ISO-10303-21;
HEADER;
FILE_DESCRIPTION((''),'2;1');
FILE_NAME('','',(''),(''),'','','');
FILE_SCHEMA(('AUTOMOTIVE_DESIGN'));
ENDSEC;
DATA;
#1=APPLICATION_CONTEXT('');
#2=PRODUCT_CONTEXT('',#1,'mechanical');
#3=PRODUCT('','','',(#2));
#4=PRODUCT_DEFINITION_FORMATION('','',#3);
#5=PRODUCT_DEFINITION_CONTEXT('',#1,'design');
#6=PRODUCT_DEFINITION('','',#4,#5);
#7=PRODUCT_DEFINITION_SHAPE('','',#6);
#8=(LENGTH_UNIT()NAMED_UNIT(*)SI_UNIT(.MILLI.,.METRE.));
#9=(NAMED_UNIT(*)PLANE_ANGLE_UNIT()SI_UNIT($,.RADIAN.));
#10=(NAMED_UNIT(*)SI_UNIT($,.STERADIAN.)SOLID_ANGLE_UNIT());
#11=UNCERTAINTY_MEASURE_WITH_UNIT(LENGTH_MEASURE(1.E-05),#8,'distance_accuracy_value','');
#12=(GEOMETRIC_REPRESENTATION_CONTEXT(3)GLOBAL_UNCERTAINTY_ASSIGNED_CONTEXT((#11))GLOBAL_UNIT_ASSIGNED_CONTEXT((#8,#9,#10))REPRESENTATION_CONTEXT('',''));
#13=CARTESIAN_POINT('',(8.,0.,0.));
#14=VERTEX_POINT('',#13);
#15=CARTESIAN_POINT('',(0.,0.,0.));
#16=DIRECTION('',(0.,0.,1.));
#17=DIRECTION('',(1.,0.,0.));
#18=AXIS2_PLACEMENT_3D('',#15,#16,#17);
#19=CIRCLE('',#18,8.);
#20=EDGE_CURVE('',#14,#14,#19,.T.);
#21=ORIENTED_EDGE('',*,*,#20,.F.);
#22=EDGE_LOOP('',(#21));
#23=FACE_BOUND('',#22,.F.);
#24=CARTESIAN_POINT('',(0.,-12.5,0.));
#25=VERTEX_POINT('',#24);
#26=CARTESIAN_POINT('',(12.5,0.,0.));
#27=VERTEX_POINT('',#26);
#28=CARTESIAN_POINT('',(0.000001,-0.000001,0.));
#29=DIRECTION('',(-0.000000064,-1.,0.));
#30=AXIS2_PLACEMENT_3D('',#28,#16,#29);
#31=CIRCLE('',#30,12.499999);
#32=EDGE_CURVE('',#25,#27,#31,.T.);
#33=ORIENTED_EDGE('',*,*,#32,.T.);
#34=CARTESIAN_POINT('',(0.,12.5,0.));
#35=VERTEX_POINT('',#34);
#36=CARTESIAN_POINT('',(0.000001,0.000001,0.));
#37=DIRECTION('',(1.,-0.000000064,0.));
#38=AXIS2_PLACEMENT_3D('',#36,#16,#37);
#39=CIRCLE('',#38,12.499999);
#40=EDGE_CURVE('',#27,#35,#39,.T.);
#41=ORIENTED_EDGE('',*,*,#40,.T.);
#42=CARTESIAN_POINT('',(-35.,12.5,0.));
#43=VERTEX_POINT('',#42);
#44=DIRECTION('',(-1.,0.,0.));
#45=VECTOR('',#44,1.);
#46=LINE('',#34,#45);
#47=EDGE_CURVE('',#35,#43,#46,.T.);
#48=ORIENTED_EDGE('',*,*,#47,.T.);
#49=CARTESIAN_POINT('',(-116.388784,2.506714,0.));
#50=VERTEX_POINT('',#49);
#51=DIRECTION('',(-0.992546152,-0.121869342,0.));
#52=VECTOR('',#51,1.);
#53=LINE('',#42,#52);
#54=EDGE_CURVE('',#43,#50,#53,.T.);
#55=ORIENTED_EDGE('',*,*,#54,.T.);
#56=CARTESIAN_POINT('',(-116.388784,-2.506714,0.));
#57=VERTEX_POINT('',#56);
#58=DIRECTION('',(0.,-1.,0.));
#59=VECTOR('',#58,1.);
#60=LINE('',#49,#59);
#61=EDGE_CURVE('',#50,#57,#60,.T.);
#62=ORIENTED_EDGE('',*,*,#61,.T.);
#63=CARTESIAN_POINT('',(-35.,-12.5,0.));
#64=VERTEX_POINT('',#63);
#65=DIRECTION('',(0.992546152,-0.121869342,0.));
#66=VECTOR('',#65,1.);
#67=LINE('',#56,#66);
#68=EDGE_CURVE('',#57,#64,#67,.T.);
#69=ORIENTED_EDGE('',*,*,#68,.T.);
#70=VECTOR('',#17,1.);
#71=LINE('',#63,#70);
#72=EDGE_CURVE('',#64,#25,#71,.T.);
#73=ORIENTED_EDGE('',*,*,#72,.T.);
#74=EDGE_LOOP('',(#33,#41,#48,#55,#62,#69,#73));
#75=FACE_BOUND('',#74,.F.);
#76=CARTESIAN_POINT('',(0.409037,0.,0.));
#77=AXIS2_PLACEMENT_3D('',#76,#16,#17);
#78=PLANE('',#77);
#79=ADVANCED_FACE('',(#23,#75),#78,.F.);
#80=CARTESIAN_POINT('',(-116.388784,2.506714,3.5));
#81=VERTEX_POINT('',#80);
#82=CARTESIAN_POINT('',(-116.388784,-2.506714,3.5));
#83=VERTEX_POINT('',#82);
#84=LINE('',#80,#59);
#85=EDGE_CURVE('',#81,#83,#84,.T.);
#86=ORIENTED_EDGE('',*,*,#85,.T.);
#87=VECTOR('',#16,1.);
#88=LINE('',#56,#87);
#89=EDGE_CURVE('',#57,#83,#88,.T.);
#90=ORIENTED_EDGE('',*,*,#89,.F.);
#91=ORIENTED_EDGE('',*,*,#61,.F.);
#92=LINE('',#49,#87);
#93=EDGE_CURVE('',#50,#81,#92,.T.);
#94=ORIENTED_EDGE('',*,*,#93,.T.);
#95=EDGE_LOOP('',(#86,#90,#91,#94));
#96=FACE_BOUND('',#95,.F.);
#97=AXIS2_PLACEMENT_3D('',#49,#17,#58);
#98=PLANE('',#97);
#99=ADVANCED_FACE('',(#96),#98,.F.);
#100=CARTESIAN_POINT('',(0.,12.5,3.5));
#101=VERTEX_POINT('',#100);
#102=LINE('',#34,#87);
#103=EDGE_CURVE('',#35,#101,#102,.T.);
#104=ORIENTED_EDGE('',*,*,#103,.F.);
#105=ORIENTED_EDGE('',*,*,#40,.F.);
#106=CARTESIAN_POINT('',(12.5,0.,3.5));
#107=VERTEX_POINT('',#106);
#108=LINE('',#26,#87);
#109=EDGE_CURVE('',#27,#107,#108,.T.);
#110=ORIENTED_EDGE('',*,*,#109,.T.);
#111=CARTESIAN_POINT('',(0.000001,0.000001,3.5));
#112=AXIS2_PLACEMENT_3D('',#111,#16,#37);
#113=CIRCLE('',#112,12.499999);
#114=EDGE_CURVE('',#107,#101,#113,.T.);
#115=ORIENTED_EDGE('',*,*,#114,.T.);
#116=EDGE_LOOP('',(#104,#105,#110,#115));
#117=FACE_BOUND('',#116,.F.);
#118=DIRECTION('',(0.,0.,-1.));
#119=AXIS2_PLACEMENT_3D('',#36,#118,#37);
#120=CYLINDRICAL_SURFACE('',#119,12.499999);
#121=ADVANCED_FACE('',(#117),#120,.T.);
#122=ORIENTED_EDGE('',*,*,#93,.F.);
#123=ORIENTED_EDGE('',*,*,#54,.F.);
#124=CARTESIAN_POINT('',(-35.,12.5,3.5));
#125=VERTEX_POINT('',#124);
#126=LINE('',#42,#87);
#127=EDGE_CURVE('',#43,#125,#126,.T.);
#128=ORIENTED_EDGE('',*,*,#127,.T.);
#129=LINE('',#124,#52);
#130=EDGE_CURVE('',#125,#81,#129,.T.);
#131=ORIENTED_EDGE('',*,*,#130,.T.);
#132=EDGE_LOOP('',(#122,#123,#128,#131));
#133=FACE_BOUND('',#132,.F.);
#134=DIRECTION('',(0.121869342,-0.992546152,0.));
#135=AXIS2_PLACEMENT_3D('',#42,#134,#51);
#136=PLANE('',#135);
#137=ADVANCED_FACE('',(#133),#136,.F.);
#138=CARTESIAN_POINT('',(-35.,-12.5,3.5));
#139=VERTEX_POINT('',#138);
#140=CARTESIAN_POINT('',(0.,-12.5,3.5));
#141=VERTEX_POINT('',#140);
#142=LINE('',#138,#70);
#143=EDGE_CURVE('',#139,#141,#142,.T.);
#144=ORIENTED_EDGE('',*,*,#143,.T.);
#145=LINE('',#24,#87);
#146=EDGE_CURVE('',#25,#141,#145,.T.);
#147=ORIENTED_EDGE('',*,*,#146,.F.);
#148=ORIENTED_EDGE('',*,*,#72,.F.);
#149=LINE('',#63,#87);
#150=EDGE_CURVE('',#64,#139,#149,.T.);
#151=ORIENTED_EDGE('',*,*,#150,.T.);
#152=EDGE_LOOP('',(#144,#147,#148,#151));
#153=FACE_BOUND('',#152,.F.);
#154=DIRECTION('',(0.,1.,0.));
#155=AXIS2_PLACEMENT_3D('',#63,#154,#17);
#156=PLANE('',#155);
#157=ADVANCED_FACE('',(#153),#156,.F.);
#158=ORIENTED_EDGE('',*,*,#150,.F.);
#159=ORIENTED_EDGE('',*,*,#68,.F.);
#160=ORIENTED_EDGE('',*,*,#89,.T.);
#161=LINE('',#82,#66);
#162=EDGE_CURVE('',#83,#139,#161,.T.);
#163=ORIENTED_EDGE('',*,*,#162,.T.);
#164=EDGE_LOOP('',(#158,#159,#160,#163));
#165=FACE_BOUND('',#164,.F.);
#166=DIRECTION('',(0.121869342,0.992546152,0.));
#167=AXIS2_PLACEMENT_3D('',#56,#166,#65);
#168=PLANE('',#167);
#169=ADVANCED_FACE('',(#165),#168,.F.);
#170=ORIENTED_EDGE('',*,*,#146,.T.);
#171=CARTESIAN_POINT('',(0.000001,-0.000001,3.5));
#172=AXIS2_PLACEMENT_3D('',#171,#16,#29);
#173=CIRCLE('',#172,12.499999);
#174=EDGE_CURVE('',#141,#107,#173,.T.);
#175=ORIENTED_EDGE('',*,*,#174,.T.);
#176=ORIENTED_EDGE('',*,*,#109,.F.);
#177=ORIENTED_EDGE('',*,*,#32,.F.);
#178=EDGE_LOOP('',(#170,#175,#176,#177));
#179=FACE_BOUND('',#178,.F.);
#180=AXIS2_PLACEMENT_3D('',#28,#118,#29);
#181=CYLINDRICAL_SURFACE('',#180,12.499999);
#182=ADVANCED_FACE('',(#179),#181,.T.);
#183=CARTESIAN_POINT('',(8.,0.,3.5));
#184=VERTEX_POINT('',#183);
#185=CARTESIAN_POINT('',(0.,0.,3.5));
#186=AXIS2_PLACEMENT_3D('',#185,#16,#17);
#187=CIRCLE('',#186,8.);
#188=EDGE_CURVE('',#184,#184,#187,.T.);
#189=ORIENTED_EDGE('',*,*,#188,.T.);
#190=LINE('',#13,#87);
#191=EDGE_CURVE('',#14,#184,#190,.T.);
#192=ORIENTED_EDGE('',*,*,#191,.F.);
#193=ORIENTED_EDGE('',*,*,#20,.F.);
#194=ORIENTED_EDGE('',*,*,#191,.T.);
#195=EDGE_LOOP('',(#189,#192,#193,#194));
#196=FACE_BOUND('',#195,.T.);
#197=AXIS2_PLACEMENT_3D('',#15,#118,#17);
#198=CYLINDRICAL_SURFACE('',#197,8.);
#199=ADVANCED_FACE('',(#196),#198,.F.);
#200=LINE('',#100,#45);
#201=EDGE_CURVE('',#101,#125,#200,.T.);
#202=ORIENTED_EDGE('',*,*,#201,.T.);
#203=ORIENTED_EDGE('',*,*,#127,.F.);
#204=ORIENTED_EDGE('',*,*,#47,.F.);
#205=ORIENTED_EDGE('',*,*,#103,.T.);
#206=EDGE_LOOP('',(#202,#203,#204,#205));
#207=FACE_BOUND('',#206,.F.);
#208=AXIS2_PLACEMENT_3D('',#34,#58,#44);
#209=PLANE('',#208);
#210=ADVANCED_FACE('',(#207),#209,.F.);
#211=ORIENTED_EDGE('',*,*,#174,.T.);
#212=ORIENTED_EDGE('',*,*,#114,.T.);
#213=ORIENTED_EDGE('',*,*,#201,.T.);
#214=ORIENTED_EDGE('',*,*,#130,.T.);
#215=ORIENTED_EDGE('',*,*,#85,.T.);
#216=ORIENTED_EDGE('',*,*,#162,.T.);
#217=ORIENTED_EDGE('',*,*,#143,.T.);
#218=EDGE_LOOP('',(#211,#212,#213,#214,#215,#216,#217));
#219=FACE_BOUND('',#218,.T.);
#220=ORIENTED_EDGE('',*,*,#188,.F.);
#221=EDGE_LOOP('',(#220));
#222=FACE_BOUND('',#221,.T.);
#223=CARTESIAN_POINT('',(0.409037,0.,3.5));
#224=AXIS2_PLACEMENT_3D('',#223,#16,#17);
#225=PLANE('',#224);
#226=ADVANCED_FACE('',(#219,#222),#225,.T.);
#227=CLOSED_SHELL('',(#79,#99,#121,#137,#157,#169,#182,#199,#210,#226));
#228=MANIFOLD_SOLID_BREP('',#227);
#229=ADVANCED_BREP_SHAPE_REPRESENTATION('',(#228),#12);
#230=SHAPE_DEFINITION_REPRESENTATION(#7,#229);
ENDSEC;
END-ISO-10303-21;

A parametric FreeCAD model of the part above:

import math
import FreeCAD as App
import Part
import Sketcher

V = App.Vector
Q = App.Units.Quantity


def add_polygon(sketch, points):
    """Adds a closed chain of lines whose ends are joined by coincident constraints."""
    first, n = sketch.GeometryCount, len(points)
    for a, b in zip(points, points[1:] + points[:1]):
        sketch.addGeometry(Part.LineSegment(App.Vector(*a, 0), App.Vector(*b, 0)), False)
    for i in range(n):
        sketch.addConstraint(Sketcher.Constraint("Coincident", first + i, 2, first + (i + 1) % n, 1))

doc = App.newDocument("Part")
body = doc.addObject("PartDesign::Body", "Body")

sketch1 = body.newObject("Sketcher::SketchObject", "Sketch")
sketch1.AttachmentSupport = (doc.getObject("XY_Plane"), [""])
sketch1.MapMode = "FlatFace"
sketch1.addGeometry([
    Part.ArcOfCircle(Part.Circle(V(0.000001, -0.000001, 0), V(0, 0, 1), 12.499999), math.radians(-90.000004), math.radians(0.000004)),
    Part.ArcOfCircle(Part.Circle(V(0.000001, 0.000001, 0), V(0, 0, 1), 12.499999), math.radians(-0.000004), math.radians(90.000004)),
    Part.LineSegment(V(0, 12.5, 0), V(-35, 12.5, 0)),
    Part.LineSegment(V(-35, 12.5, 0), V(-116.388784, 2.506714, 0)),
    Part.LineSegment(V(-116.388784, 2.506714, 0), V(-116.388784, -2.506714, 0)),
    Part.LineSegment(V(-116.388784, -2.506714, 0), V(-35, -12.5, 0)),
    Part.LineSegment(V(-35, -12.5, 0), V(0, -12.5, 0)),
    Part.Circle(V(0, 0, 0), V(0, 0, 1), 8),
], False)
sketch1.addConstraint([
    Sketcher.Constraint("Tangent", 0, 2, 1, 1),
    Sketcher.Constraint("Tangent", 1, 2, 2, 1),
    Sketcher.Constraint("Coincident", 2, 2, 3, 1),
    Sketcher.Constraint("Coincident", 3, 2, 4, 1),
    Sketcher.Constraint("Coincident", 4, 2, 5, 1),
    Sketcher.Constraint("Coincident", 5, 2, 6, 1),
    Sketcher.Constraint("Tangent", 6, 2, 0, 1),
    Sketcher.Constraint("Horizontal", 2),
    Sketcher.Constraint("Vertical", 4),
    Sketcher.Constraint("Horizontal", 6),
    Sketcher.Constraint("Coincident", 0, 3, -1, 1),
    Sketcher.Constraint("Coincident", 7, 3, -1, 1),
    Sketcher.Constraint("Equal", 0, 1),
    Sketcher.Constraint("PointOnObject", 0, 2, -1),
    Sketcher.Constraint("Vertical", 2, 2, 5, 2),
    Sketcher.Constraint("Equal", 3, 5),
    Sketcher.Constraint("Diameter", 7, Q("16 mm")),
    Sketcher.Constraint("Radius", 0, Q("12.499999 mm")),
    Sketcher.Constraint("DistanceX", 2, 2, 2, 1, Q("35 mm")),
    Sketcher.Constraint("Angle", 3, Q("-173 deg")),
    Sketcher.Constraint("Distance", 3, Q("82 mm")),
])
pad1 = body.newObject("PartDesign::Pad", "Pad")
pad1.Profile = sketch1
pad1.Length = 3.5

sketch2 = body.newObject("Sketcher::SketchObject", "Sketch001")
sketch2.AttachmentSupport = (doc.getObject("XY_Plane"), [""])
sketch2.MapMode = "FlatFace"
add_polygon(sketch2, [(-116.47232, 1.673778), (-116.47232, -1.009042), (-96.47232, -1.009042), (-96.47232, 1.673778)])
sketch2.addGeometry(Part.Circle(V(0, 0, 0), V(0, 0, 1), 17.5), False)
sketch2.addGeometry(Part.Circle(V(0, 0, 0), V(0, 0, 1), 12.5), False)
sketch2.addConstraint([
    Sketcher.Constraint("Vertical", 0),
    Sketcher.Constraint("Horizontal", 1),
    Sketcher.Constraint("Vertical", 2),
    Sketcher.Constraint("Horizontal", 3),
    Sketcher.Constraint("Coincident", 4, 3, -1, 1),
    Sketcher.Constraint("Coincident", 5, 3, -1, 1),
    Sketcher.Constraint("Diameter", 4, Q("35 mm")),
    Sketcher.Constraint("Diameter", 5, Q("25 mm")),
    Sketcher.Constraint("DistanceX", 1, 1, 1, 2, Q("20 mm")),
    Sketcher.Constraint("DistanceY", 0, 2, 0, 1, Q("2.68282 mm")),
    Sketcher.Constraint("DistanceX", 0, 2, -1, 1, Q("116.47232 mm")),
    Sketcher.Constraint("DistanceY", 0, 2, -1, 1, Q("1.009042 mm")),
])
pocket1 = body.newObject("PartDesign::Pocket", "Pocket")
pocket1.Profile = sketch2
pocket1.Length = 2

doc.recompute()
